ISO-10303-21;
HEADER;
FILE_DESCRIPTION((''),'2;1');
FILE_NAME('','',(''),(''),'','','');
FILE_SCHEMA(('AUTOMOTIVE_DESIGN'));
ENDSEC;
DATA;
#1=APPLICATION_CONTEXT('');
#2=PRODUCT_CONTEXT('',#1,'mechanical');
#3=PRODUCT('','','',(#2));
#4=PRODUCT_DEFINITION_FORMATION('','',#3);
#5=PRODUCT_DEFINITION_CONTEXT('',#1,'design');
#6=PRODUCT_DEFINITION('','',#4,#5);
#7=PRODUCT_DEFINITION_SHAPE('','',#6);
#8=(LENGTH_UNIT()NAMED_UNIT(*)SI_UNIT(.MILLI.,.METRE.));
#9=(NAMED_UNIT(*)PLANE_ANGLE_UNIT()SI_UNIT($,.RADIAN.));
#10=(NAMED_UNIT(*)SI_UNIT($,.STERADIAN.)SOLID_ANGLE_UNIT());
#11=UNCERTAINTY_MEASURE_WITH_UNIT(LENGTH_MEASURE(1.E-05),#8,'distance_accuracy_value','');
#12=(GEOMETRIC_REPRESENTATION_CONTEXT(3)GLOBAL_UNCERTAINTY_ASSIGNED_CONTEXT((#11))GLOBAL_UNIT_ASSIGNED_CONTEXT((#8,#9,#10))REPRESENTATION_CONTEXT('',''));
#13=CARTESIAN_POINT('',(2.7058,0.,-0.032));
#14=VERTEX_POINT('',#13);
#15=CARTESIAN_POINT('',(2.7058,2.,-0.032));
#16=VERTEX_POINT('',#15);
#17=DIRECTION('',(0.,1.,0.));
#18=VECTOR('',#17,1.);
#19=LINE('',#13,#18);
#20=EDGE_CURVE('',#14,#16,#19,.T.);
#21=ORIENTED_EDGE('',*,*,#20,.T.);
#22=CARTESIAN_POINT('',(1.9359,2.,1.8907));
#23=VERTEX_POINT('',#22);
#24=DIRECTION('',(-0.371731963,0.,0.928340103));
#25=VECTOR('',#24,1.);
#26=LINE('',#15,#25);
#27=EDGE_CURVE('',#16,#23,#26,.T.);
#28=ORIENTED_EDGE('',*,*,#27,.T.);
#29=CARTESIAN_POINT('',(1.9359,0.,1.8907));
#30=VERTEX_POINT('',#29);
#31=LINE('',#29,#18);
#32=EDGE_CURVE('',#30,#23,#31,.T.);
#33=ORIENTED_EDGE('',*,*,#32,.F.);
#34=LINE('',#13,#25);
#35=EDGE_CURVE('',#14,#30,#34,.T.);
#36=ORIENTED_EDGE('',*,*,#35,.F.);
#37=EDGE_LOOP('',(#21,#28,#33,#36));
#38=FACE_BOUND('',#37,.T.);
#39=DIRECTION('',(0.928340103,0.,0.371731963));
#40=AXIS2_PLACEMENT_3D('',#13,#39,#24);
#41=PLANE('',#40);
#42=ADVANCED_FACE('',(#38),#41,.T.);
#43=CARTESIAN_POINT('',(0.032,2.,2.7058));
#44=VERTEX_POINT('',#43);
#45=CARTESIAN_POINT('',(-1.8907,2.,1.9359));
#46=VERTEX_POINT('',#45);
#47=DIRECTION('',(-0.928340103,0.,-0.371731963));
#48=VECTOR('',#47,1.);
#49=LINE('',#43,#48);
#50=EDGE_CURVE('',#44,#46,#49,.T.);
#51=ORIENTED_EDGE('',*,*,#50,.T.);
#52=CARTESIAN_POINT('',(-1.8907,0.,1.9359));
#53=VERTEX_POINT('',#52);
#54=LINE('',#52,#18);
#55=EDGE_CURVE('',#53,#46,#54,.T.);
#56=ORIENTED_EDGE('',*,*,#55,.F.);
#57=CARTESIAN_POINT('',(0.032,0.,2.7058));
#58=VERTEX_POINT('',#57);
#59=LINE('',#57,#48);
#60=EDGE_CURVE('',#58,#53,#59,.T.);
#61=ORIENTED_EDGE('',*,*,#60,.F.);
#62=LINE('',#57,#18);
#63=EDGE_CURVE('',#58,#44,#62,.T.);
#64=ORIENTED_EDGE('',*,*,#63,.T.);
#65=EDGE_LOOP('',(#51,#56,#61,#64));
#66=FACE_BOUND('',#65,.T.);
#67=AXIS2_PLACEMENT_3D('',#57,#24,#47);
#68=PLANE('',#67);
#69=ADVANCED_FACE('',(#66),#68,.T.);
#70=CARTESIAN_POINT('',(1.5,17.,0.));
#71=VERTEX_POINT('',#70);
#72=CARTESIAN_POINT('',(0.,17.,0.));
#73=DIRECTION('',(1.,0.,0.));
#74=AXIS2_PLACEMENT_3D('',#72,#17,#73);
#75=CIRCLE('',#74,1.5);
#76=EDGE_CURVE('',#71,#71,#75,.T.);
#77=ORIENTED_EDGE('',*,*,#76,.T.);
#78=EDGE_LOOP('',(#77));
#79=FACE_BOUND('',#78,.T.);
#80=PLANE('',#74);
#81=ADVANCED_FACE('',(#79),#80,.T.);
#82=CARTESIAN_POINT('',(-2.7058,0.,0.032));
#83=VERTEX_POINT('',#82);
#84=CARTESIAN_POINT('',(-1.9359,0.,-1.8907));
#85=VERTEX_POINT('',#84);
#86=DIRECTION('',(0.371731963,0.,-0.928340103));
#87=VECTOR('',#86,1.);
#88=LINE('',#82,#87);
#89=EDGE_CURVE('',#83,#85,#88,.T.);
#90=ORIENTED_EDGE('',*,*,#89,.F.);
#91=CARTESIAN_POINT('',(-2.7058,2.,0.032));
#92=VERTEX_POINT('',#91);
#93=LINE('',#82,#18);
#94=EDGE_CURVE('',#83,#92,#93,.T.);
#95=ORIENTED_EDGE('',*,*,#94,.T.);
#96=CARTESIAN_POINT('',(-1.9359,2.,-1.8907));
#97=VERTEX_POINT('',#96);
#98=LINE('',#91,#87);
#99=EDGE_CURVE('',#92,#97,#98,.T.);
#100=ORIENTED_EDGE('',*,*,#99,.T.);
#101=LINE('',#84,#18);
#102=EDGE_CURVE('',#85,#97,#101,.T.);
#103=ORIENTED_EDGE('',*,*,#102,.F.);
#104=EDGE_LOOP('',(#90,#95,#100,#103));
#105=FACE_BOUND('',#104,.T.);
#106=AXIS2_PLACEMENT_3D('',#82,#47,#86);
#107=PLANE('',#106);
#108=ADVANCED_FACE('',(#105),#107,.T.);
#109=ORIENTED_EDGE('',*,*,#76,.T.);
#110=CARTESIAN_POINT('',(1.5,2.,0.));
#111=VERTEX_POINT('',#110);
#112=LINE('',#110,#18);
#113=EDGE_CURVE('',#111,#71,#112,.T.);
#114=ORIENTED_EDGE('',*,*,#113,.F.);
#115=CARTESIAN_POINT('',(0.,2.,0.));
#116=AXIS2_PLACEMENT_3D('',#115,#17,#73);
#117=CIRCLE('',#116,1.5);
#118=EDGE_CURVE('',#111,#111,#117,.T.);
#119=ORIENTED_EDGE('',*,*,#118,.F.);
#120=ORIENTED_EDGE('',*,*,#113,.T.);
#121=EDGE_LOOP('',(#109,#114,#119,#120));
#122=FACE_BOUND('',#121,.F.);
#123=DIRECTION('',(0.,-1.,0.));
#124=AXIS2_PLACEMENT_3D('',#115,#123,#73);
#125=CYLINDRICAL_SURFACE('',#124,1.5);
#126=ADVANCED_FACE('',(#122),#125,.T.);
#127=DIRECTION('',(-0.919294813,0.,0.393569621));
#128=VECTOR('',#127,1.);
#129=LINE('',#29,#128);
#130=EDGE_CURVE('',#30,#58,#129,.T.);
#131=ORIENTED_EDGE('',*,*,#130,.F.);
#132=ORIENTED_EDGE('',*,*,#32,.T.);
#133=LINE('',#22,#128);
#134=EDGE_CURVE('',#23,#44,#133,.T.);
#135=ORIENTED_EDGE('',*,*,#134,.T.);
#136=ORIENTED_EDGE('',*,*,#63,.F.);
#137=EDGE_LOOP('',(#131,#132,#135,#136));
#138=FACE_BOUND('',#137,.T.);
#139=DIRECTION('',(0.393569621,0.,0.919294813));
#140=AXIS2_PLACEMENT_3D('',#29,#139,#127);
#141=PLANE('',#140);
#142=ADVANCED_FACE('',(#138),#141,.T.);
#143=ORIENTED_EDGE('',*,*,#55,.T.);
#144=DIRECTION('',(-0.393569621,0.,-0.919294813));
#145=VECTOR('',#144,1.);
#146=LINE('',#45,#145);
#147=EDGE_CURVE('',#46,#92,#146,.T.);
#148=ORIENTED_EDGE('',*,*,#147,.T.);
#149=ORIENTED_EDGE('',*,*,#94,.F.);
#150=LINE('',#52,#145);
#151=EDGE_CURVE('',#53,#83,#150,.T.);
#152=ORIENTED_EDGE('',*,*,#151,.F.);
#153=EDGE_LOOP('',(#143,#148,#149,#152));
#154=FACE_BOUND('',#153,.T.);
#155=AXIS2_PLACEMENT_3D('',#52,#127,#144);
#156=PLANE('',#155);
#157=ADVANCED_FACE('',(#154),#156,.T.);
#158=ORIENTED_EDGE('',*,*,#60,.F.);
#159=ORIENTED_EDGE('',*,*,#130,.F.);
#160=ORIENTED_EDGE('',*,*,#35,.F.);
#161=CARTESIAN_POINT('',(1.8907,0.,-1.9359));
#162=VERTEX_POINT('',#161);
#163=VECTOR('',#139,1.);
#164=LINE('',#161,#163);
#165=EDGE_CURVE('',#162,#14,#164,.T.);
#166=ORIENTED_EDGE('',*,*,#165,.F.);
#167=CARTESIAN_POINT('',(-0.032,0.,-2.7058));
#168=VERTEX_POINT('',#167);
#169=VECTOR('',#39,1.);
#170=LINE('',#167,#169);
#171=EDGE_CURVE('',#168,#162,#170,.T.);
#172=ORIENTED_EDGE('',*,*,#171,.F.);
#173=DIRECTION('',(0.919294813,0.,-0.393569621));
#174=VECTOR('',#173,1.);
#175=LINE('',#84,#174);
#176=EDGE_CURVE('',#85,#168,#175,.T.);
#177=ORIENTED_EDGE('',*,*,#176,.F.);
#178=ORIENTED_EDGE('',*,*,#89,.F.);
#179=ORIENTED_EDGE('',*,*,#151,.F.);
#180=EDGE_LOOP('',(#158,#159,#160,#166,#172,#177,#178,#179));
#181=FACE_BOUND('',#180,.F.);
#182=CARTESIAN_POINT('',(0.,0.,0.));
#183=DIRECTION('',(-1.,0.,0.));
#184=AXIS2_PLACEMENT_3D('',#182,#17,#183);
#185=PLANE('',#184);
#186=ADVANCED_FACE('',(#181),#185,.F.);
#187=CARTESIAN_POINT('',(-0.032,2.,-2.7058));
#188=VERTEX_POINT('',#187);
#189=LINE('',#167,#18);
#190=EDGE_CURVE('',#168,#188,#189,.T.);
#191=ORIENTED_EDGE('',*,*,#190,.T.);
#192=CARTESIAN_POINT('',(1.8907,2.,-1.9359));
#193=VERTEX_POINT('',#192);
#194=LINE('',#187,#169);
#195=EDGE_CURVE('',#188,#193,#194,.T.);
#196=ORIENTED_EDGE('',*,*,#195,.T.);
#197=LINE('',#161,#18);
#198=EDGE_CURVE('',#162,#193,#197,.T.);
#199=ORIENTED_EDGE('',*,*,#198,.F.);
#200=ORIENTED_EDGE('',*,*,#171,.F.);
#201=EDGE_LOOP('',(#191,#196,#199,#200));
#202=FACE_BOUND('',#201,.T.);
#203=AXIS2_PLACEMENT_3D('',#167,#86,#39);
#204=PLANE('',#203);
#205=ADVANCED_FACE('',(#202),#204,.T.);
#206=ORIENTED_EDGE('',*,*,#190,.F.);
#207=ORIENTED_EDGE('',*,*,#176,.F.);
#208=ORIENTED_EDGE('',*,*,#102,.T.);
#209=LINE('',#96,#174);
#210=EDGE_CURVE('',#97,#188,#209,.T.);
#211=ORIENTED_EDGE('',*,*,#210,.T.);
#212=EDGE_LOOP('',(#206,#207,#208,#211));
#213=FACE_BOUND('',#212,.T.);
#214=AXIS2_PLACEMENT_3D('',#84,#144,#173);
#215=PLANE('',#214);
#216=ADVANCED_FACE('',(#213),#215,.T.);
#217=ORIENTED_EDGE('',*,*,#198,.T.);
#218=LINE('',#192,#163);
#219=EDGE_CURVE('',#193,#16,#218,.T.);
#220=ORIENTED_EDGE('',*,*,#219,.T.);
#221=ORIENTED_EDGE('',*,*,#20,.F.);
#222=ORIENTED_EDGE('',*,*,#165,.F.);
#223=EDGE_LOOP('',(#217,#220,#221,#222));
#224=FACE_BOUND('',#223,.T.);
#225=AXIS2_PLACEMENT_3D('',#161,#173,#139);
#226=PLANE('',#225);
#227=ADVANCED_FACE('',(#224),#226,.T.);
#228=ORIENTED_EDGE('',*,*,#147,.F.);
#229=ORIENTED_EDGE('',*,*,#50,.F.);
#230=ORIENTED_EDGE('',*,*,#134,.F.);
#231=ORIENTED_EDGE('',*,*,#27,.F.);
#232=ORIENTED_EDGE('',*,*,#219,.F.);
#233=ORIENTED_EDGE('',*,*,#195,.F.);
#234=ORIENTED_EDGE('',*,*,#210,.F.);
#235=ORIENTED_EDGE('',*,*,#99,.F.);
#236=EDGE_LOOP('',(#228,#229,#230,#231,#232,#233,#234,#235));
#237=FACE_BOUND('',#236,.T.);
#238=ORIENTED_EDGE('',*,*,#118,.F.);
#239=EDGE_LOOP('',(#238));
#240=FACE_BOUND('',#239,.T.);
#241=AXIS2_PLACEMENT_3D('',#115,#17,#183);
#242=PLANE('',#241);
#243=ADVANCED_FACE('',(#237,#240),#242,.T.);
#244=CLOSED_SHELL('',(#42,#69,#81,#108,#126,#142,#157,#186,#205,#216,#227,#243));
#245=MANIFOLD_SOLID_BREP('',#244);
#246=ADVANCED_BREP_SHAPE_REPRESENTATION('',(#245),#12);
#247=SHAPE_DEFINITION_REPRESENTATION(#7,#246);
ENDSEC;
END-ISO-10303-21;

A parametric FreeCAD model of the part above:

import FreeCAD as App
import Part
import Sketcher
from FreeCAD import Vector


def add_polygon(sketch, points):
    """Adds a closed chain of lines whose ends are joined by coincident constraints."""
    first, n = sketch.GeometryCount, len(points)
    for a, b in zip(points, points[1:] + points[:1]):
        sketch.addGeometry(Part.LineSegment(App.Vector(*a, 0), App.Vector(*b, 0)), False)
    for i in range(n):
        sketch.addConstraint(Sketcher.Constraint("Coincident", first + i, 2, first + (i + 1) % n, 1))

doc = App.newDocument("Part")
params = doc.addObject("Spreadsheet::Sheet", "Params")
for row, (alias, value) in enumerate([
    ("pad1_length", "2 mm"),
    ("sketch2_diameter", "3 mm"),
    ("pad2_length", "15 mm"),
], start=1):
    params.set(f"A{row}", alias)
    params.set(f"B{row}", "=" + value)
    params.setAlias(f"B{row}", alias)

body = doc.addObject("PartDesign::Body", "Body")

# Sketch on XZ plane
sketch1 = doc.addObject("Sketcher::SketchObject", "Sketch")
body.addObject(sketch1)
sketch1.AttachmentSupport = (doc.XZ_Plane, [""])
sketch1.MapMode = "FlatFace"
add_polygon(sketch1, [(2.7058, -0.032), (1.8907, -1.9359), (-0.032, -2.7058), (-1.9359, -1.8907), (-2.7058, 0.032), (-1.8907, 1.9359), (0.032, 2.7058), (1.9359, 1.8907)])  # lines 0-7
sketch1.addConstraint([
    Sketcher.Constraint("Symmetric", 0, 2, 4, 2, -1, 1),
    Sketcher.Constraint("Symmetric", 1, 2, 5, 2, -1, 1),
    Sketcher.Constraint("Symmetric", 2, 2, 6, 2, -1, 1),
    Sketcher.Constraint("Symmetric", 3, 2, 7, 2, -1, 1),
    Sketcher.Constraint("Perpendicular", 0, 2),
    Sketcher.Constraint("Perpendicular", 1, 3),
    Sketcher.Constraint("Equal", 0, 1),
    Sketcher.Constraint("Equal", 1, 2),
    Sketcher.Constraint("Equal", 2, 3),
    Sketcher.Constraint("DistanceY", 1, 2, 0, 2, 0.77),
    Sketcher.Constraint("Distance", 0, 2.071),
    Sketcher.Constraint("DistanceY", 0, 2, -1, 1, 1.936),
])
pad1 = doc.addObject("PartDesign::Pad", "Pad")
body.addObject(pad1)
pad1.Profile = sketch1
pad1.setExpression("Length", "Params.pad1_length")
pad1.Reversed = True

# Sketch on XZ plane
sketch2 = doc.addObject("Sketcher::SketchObject", "Sketch001")
body.addObject(sketch2)
sketch2.AttachmentSupport = (doc.XZ_Plane, [""])
sketch2.MapMode = "FlatFace"
sketch2.AttachmentOffset = App.Placement(Vector(0, 0, -2), App.Rotation())
sketch2.addGeometry(Part.Circle(Vector(0, 0, 0), Vector(0, 0, 1), 1.5), False)
sketch2.addConstraint([
    Sketcher.Constraint("Coincident", 0, 3, -1, 1),
    Sketcher.Constraint("Diameter", 0, 3.0),
])
sketch2.setExpression("Constraints[1]", "Params.sketch2_diameter")
pad2 = doc.addObject("PartDesign::Pad", "Pad001")
body.addObject(pad2)
pad2.Profile = sketch2
pad2.setExpression("Length", "Params.pad2_length")
pad2.Reversed = True

doc.recompute()
